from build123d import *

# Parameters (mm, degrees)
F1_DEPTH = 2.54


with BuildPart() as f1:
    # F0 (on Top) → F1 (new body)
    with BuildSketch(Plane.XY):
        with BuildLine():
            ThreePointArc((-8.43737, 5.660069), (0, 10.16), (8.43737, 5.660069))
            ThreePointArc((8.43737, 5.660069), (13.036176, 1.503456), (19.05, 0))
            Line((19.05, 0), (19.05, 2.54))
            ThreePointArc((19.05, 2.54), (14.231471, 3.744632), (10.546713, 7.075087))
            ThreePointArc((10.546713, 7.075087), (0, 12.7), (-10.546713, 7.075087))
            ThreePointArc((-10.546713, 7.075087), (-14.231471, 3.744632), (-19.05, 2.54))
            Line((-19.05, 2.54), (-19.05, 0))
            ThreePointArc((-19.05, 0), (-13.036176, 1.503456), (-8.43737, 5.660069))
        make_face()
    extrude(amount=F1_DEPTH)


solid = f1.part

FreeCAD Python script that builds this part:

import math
import FreeCAD as App
import Part
import Sketcher
from FreeCAD import Vector
Q = App.Units.Quantity

doc = App.newDocument("Part")
params = doc.addObject("Spreadsheet::Sheet", "Params")
for row, (alias, value) in enumerate([
    ("sketch1_radius", "0.4 in"),
    ("sketch1_radius2", "0.5 in"),
    ("pad1_length", "0.1 in"),
], start=1):
    params.set(f"A{row}", alias)
    params.set(f"B{row}", "=" + value)
    params.setAlias(f"B{row}", alias)

body = doc.addObject("PartDesign::Body", "Body")

# Sketch on XY plane
sketch1 = body.newObject("Sketcher::SketchObject", "Sketch")
sketch1.AttachmentSupport = (doc.getObject("XY_Plane"), [""])
sketch1.MapMode = "FlatFace"
sketch1.addGeometry([
    Part.ArcOfCircle(Part.Circle(Vector(0, 0.000001, 0), Vector(0, 0, 1), 10.159999), math.radians(33.855023), math.radians(146.144977)),  # 0
    Part.ArcOfCircle(Part.Circle(Vector(19.05, 12.779375, 0), Vector(0, 0, 1), 12.779375), math.radians(-146.144972), math.radians(-89.999999)),  # 1
    Part.LineSegment(Vector(19.05, 0, 0), Vector(19.05, 2.54, 0)),  # 2
    Part.ArcOfCircle(Part.Circle(Vector(19.049999, 12.779372, 0), Vector(0, 0, 1), 10.239372), math.radians(-146.144985), math.radians(-89.999995)),  # 3
    Part.ArcOfCircle(Part.Circle(Vector(0, -0.000001, 0), Vector(0, 0, 1), 12.700001), math.radians(33.855031), math.radians(146.144969)),  # 4
    Part.ArcOfCircle(Part.Circle(Vector(-19.049999, 12.779372, 0), Vector(0, 0, 1), 10.239372), math.radians(-90.000005), math.radians(-33.855015)),  # 5
    Part.LineSegment(Vector(-19.05, 2.54, 0), Vector(-19.05, 0, 0)),  # 6
    Part.ArcOfCircle(Part.Circle(Vector(-19.05, 12.779375, 0), Vector(0, 0, 1), 12.779375), math.radians(-90.000001), math.radians(-33.855028)),  # 7
], False)
sketch1.addConstraint([
    Sketcher.Constraint("Tangent", 0, 1, 1, 1),
    Sketcher.Constraint("Coincident", 1, 2, 2, 1),
    Sketcher.Constraint("Coincident", 2, 2, 3, 2),
    Sketcher.Constraint("Tangent", 3, 1, 4, 1),
    Sketcher.Constraint("Tangent", 4, 2, 5, 2),
    Sketcher.Constraint("Coincident", 5, 1, 6, 1),
    Sketcher.Constraint("Coincident", 6, 2, 7, 1),
    Sketcher.Constraint("Tangent", 7, 2, 0, 2),
    Sketcher.Constraint("Vertical", 2),
    Sketcher.Constraint("Vertical", 6),
    Sketcher.Constraint("Coincident", 0, 3, -1, 1),
    Sketcher.Constraint("Coincident", 4, 3, -1, 1),
    Sketcher.Constraint("Coincident", 3, 3, 1, 3),
    Sketcher.Constraint("Coincident", 7, 3, 5, 3),
    Sketcher.Constraint("Equal", 3, 5),
    Sketcher.Constraint("Symmetric", 1, 2, 6, 2, -1, 1),
    Sketcher.Constraint("PointOnObject", 1, 2, -1),
    Sketcher.Constraint("Vertical", 3, 3, 1, 2),
    Sketcher.Constraint("Radius", 0, Q("0.4 in")),
    Sketcher.Constraint("Radius", 4, Q("0.5 in")),
    Sketcher.Constraint("DistanceX", 5, 3, 3, 3, Q("1.4999999 in")),
])
sketch1.setExpression("Constraints[18]", "Params.sketch1_radius")
sketch1.setExpression("Constraints[19]", "Params.sketch1_radius2")
pad1 = body.newObject("PartDesign::Pad", "Pad")
pad1.Profile = sketch1
pad1.setExpression("Length", "Params.pad1_length")

doc.recompute()
